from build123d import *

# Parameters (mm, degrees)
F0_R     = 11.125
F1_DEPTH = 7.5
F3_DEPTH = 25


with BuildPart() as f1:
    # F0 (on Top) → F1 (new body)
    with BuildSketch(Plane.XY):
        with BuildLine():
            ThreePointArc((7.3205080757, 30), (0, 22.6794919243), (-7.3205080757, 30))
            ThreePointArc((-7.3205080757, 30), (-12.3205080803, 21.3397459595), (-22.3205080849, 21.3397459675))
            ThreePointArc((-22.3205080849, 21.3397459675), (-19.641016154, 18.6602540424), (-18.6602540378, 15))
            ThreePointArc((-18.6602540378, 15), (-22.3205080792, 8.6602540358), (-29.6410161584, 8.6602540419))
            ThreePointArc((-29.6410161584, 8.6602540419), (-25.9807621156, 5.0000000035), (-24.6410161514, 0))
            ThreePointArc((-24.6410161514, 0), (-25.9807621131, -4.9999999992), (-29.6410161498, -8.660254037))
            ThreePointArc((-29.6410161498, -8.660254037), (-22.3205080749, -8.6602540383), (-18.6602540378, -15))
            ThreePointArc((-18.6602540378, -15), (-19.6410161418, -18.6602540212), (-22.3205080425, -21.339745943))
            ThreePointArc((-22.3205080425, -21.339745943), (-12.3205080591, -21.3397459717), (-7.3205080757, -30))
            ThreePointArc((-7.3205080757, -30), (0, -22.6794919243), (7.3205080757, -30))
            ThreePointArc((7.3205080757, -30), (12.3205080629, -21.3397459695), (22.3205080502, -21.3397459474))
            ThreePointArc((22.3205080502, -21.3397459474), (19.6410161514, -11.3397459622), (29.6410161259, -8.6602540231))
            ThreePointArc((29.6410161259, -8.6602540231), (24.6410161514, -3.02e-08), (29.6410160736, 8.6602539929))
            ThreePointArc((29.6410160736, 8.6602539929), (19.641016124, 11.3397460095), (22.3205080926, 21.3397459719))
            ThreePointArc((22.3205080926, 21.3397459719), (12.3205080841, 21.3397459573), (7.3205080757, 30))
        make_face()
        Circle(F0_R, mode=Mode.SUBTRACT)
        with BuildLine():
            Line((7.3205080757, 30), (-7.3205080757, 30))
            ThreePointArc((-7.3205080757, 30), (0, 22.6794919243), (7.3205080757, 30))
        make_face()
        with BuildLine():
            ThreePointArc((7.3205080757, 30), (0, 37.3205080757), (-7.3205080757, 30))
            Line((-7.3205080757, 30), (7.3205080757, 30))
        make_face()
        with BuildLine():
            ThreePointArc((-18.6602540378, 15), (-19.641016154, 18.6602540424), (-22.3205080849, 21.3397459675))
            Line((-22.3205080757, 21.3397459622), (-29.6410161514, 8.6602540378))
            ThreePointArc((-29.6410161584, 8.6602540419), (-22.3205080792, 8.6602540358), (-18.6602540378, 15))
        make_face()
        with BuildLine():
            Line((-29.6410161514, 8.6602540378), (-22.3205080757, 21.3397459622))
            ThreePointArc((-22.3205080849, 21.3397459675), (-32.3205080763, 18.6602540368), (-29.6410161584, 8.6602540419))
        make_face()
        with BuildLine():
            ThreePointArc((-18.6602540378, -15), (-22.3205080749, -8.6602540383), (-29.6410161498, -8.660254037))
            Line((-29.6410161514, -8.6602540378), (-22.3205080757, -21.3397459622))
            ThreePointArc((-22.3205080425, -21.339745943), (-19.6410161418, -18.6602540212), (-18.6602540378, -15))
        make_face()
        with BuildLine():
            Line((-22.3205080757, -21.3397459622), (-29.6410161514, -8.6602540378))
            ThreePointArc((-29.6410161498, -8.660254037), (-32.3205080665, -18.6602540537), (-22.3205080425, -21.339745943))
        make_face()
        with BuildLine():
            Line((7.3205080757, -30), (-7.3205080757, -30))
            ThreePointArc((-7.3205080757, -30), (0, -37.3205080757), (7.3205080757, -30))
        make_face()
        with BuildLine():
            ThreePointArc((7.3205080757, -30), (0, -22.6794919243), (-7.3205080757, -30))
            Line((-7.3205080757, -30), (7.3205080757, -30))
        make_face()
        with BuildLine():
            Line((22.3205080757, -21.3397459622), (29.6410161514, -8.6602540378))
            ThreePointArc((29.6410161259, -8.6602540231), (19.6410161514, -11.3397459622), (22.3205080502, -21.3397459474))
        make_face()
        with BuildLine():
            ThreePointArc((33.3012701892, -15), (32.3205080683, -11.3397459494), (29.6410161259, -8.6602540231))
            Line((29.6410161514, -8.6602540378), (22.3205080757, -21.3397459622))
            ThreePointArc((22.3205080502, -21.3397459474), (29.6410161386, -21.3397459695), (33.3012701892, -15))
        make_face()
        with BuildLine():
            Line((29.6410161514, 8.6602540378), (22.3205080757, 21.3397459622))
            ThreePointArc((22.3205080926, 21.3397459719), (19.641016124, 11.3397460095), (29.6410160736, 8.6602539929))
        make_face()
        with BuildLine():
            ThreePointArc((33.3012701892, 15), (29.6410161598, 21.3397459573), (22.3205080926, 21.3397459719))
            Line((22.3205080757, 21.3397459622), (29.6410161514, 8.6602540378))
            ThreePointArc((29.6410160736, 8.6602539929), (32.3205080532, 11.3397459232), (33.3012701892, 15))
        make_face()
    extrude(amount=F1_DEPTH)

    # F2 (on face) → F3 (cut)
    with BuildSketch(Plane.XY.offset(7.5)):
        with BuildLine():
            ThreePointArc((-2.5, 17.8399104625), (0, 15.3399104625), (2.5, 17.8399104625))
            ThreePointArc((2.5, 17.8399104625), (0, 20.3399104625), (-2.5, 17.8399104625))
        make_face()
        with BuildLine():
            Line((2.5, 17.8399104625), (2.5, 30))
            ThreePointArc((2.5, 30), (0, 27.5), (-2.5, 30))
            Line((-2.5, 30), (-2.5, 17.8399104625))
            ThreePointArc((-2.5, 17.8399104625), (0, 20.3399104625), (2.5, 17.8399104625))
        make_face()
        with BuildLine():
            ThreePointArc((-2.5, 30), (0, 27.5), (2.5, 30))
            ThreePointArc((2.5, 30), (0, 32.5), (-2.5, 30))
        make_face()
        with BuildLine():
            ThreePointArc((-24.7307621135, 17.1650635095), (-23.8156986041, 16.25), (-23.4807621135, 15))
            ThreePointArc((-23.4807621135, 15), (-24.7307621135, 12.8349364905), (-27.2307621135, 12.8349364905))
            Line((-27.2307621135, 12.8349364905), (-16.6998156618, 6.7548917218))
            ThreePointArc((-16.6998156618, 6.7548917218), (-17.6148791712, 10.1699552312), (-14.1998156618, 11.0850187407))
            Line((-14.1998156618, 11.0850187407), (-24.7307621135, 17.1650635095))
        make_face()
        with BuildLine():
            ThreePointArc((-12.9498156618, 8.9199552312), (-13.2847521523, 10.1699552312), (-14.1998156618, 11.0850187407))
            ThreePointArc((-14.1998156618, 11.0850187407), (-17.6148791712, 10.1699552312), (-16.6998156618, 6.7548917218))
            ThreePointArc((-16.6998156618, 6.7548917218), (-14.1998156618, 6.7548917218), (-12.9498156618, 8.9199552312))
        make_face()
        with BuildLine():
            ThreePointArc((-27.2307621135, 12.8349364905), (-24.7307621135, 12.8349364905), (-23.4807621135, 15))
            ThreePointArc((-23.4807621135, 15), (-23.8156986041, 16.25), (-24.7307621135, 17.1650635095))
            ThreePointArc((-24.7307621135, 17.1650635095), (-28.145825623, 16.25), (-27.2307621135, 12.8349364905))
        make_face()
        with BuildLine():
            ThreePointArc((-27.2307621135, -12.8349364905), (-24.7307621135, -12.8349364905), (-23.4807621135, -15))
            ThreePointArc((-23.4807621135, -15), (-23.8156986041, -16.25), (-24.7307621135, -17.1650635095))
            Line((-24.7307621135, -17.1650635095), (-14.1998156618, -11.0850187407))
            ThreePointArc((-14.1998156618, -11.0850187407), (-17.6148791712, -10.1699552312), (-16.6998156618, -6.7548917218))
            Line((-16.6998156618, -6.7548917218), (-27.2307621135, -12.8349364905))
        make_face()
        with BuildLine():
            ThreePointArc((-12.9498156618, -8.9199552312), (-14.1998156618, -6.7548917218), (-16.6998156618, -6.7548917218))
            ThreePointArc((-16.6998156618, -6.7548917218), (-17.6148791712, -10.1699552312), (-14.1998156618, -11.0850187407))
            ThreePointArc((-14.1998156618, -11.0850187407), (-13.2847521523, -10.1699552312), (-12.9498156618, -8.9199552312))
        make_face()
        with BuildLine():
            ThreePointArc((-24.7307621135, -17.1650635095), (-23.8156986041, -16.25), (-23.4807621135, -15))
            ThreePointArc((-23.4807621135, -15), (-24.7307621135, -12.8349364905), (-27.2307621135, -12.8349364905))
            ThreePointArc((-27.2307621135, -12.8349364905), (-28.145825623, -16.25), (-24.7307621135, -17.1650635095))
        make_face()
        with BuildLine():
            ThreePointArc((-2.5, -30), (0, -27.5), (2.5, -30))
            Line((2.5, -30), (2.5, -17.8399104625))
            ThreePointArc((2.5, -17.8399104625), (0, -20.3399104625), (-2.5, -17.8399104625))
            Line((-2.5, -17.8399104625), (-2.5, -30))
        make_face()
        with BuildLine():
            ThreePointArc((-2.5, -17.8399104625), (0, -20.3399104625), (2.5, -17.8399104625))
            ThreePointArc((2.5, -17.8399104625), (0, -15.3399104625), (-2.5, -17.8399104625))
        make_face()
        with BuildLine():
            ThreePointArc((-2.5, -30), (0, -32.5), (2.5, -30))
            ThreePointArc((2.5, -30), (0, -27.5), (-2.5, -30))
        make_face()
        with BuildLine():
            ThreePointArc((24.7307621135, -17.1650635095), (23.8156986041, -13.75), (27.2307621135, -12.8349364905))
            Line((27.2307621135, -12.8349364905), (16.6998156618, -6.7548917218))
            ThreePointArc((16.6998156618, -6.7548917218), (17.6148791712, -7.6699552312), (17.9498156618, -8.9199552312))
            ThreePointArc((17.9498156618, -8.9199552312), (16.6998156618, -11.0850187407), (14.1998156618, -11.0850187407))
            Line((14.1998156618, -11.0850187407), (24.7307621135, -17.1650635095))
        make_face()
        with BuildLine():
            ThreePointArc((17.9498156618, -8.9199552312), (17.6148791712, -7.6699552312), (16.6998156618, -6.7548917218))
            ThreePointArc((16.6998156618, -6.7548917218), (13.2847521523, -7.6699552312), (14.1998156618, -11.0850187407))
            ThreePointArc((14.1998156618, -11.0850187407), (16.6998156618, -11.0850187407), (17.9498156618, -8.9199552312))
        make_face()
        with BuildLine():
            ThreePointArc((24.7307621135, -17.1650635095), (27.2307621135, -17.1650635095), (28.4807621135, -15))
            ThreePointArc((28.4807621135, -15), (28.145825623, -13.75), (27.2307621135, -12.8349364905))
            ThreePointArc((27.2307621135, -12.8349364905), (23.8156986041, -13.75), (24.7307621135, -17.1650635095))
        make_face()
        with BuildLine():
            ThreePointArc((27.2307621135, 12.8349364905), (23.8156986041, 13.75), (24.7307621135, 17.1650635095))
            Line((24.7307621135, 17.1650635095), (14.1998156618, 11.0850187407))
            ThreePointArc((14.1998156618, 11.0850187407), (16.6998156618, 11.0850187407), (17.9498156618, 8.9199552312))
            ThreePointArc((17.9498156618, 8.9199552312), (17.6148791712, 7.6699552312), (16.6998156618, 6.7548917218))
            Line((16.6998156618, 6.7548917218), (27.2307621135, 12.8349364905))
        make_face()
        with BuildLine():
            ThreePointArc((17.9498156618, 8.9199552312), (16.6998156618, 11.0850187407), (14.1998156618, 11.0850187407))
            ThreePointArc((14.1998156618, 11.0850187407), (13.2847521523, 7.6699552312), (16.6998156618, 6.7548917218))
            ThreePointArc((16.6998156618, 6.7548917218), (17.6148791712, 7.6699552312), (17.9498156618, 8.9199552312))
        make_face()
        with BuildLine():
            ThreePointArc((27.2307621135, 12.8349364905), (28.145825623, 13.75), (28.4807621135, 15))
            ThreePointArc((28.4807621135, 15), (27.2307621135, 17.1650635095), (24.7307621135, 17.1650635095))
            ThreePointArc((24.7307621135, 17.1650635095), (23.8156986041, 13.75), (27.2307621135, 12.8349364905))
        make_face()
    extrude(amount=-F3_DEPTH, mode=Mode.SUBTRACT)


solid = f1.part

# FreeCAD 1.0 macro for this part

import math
import FreeCAD as App
import Part
import Sketcher
Q = App.Units.Quantity

doc = App.newDocument("Part")
params = doc.addObject("Spreadsheet::Sheet", "Params")
for row, (alias, value) in enumerate([
    ("sketch1_radius", "10 mm"),
    ("sketch1_diameter", "22.25 mm"),
    ("sketch1_width", "5 mm"),
    ("pad1_length", "7.5 mm"),
    ("sketch2_radius", "2.5 mm"),
    ("pocket1_length", "25 mm"),
], start=1):
    params.set(f"A{row}", alias)
    params.set(f"B{row}", "=" + value)
    params.setAlias(f"B{row}", alias)

body = doc.addObject("PartDesign::Body", "Body")

sketch1 = doc.addObject("Sketcher::SketchObject", "Sketch")
body.addObject(sketch1)
sketch1.AttachmentSupport = (doc.XY_Plane, [""])
sketch1.MapMode = "FlatFace"
sketch1.addGeometry(Part.ArcOfCircle(Part.Circle(App.Vector(17.320508, 30, 0), App.Vector(0, 0, 1), 10), math.radians(180), math.radians(300)), False)
sketch1.addGeometry(Part.ArcOfCircle(Part.Circle(App.Vector(0, 30, 0), App.Vector(0, 0, 1), 7.320508), math.radians(0), math.radians(180)), False)
sketch1.addGeometry(Part.ArcOfCircle(Part.Circle(App.Vector(-17.320508, 30, 0), App.Vector(0, 0, 1), 10), math.radians(-120), math.radians(0)), False)
sketch1.addGeometry(Part.ArcOfCircle(Part.Circle(App.Vector(-25.980762, 15, 0), App.Vector(0, 0, 1), 7.320508), math.radians(60), math.radians(240)), False)
sketch1.addGeometry(Part.ArcOfCircle(Part.Circle(App.Vector(-34.641016, 0, 0), App.Vector(0, 0, 1), 10), math.radians(0), math.radians(60)), False)
sketch1.addGeometry(Part.ArcOfCircle(Part.Circle(App.Vector(-34.641016, 0, 0), App.Vector(0, 0, 1), 10), math.radians(-60), math.radians(0)), False)
sketch1.addGeometry(Part.ArcOfCircle(Part.Circle(App.Vector(-25.980762, -15, 0), App.Vector(0, 0, 1), 7.320508), math.radians(120), math.radians(300)), False)
sketch1.addGeometry(Part.ArcOfCircle(Part.Circle(App.Vector(-17.320508, -30, 0), App.Vector(0, 0, 1), 10), math.radians(0), math.radians(120)), False)
sketch1.addGeometry(Part.ArcOfCircle(Part.Circle(App.Vector(0, -30, 0), App.Vector(0, 0, 1), 7.320508), math.radians(180), math.radians(360)), False)
sketch1.addGeometry(Part.ArcOfCircle(Part.Circle(App.Vector(17.320508, -30, 0), App.Vector(0, 0, 1), 10), math.radians(60), math.radians(180)), False)
sketch1.addGeometry(Part.ArcOfCircle(Part.Circle(App.Vector(25.980762, -15, 0), App.Vector(0, 0, 1), 7.320508), math.radians(-120), math.radians(0)), False)
sketch1.addGeometry(Part.ArcOfCircle(Part.Circle(App.Vector(25.980762, -15, 0), App.Vector(0, 0, 1), 7.320508), math.radians(0), math.radians(60)), False)
sketch1.addGeometry(Part.ArcOfCircle(Part.Circle(App.Vector(34.641016, 0, 0), App.Vector(0, 0, 1), 10), math.radians(120.000001), math.radians(240)), False)
sketch1.addGeometry(Part.ArcOfCircle(Part.Circle(App.Vector(25.980762, 15, 0), App.Vector(0, 0, 1), 7.320508), math.radians(-60.000001), math.radians(0)), False)
sketch1.addGeometry(Part.ArcOfCircle(Part.Circle(App.Vector(25.980762, 15, 0), App.Vector(0, 0, 1), 7.320508), math.radians(0), math.radians(120)), False)
sketch1.addGeometry(Part.Circle(App.Vector(0, 0, 0), App.Vector(0, 0, 1), 11.125), False)
sketch1.addConstraint(Sketcher.Constraint("Tangent", 0, 1, 1, 1))
sketch1.addConstraint(Sketcher.Constraint("Tangent", 1, 2, 2, 2))
sketch1.addConstraint(Sketcher.Constraint("Tangent", 2, 1, 3, 1))
sketch1.addConstraint(Sketcher.Constraint("Tangent", 3, 2, 4, 2))
sketch1.addConstraint(Sketcher.Constraint("Tangent", 4, 1, 5, 2))
sketch1.addConstraint(Sketcher.Constraint("Tangent", 5, 1, 6, 1))
sketch1.addConstraint(Sketcher.Constraint("Tangent", 6, 2, 7, 2))
sketch1.addConstraint(Sketcher.Constraint("Tangent", 7, 1, 8, 1))
sketch1.addConstraint(Sketcher.Constraint("Tangent", 8, 2, 9, 2))
sketch1.addConstraint(Sketcher.Constraint("Tangent", 9, 1, 10, 1))
sketch1.addConstraint(Sketcher.Constraint("Tangent", 10, 2, 11, 1))
sketch1.addConstraint(Sketcher.Constraint("Tangent", 11, 2, 12, 2))
sketch1.addConstraint(Sketcher.Constraint("Tangent", 12, 1, 13, 1))
sketch1.addConstraint(Sketcher.Constraint("Tangent", 13, 2, 14, 1))
sketch1.addConstraint(Sketcher.Constraint("Tangent", 14, 2, 0, 2))
sketch1.addConstraint(Sketcher.Constraint("Coincident", 15, 3, -1, 1))
sketch1.addConstraint(Sketcher.Constraint("Equal", 0, 2))
sketch1.addConstraint(Sketcher.Constraint("Equal", 1, 3))
sketch1.addConstraint(Sketcher.Constraint("Equal", 2, 4))
sketch1.addConstraint(Sketcher.Constraint("Equal", 4, 5))
sketch1.addConstraint(Sketcher.Constraint("Equal", 3, 6))
sketch1.addConstraint(Sketcher.Constraint("Equal", 5, 7))
sketch1.addConstraint(Sketcher.Constraint("Equal", 6, 8))
sketch1.addConstraint(Sketcher.Constraint("Equal", 7, 9))
sketch1.addConstraint(Sketcher.Constraint("Equal", 8, 10))
sketch1.addConstraint(Sketcher.Constraint("Equal", 10, 11))
sketch1.addConstraint(Sketcher.Constraint("Equal", 9, 12))
sketch1.addConstraint(Sketcher.Constraint("Equal", 11, 13))
sketch1.addConstraint(Sketcher.Constraint("Equal", 13, 14))
sketch1.addConstraint(Sketcher.Constraint("Symmetric", 0, 3, 7, 3, -1, 1))
sketch1.addConstraint(Sketcher.Constraint("Symmetric", 3, 3, 10, 3, -1, 1))
sketch1.addConstraint(Sketcher.Constraint("Symmetric", 0, 3, 2, 3, -2))
sketch1.addConstraint(Sketcher.Constraint("Symmetric", 10, 2, 13, 2, -1))
sketch1.addConstraint(Sketcher.Constraint("PointOnObject", 4, 1, -1))
sketch1.addConstraint(Sketcher.Constraint("Horizontal", 0, 3, 1, 3))
sketch1.addConstraint(Sketcher.Constraint("Horizontal", 7, 3, 8, 3))
sketch1.addConstraint(Sketcher.Constraint("Horizontal", 6, 3, 10, 3))
sketch1.addConstraint(Sketcher.Constraint("Horizontal", 11, 3, 10, 2))
sketch1.addConstraint(Sketcher.Constraint("Radius", 0, Q("10 mm")))
sketch1.addConstraint(Sketcher.Constraint("Diameter", 15, Q("22.25 mm")))
sketch1.addConstraint(Sketcher.Constraint("DistanceY", -1, 1, 0, 3, Q("30 mm")))
sketch1.addConstraint(Sketcher.Constraint("DistanceY", -1, 1, 3, 3, Q("15 mm")))
sketch1.addConstraint(Sketcher.Constraint("DistanceX", 2, 1, 2, 3, Q("5 mm")))
sketch1.setExpression("Constraints[38]", "Params.sketch1_radius")
sketch1.setExpression("Constraints[39]", "Params.sketch1_diameter")
sketch1.setExpression("Constraints[42]", "Params.sketch1_width")
pad1 = doc.addObject("PartDesign::Pad", "Pad")
body.addObject(pad1)
pad1.Profile = sketch1
pad1.setExpression("Length", "Params.pad1_length")

sketch2 = doc.addObject("Sketcher::SketchObject", "Sketch001")
body.addObject(sketch2)
sketch2.AttachmentSupport = (doc.XY_Plane, [""])
sketch2.MapMode = "FlatFace"
sketch2.AttachmentOffset = App.Placement(App.Vector(0, 0, 7.5), App.Rotation())
sketch2.addGeometry(Part.ArcOfCircle(Part.Circle(App.Vector(0, 17.83991, 0), App.Vector(0, 0, 1), 2.5), math.radians(180), math.radians(360)), False)
sketch2.addGeometry(Part.LineSegment(App.Vector(2.5, 17.83991, 0), App.Vector(2.5, 30, 0)), False)
sketch2.addGeometry(Part.ArcOfCircle(Part.Circle(App.Vector(0, 30, 0), App.Vector(0, 0, 1), 2.5), math.radians(0), math.radians(180)), False)
sketch2.addGeometry(Part.LineSegment(App.Vector(-2.5, 30, 0), App.Vector(-2.5, 17.83991, 0)), False)
sketch2.addGeometry(Part.LineSegment(App.Vector(-27.230762, 12.834936, 0), App.Vector(-16.699816, 6.754892, 0)), False)
sketch2.addGeometry(Part.ArcOfCircle(Part.Circle(App.Vector(-15.449816, 8.919955, 0), App.Vector(0, 0, 1), 2.5), math.radians(-120), math.radians(0)), False)
sketch2.addGeometry(Part.ArcOfCircle(Part.Circle(App.Vector(-15.449816, 8.919955, 0), App.Vector(0, 0, 1), 2.5), math.radians(0), math.radians(60)), False)
sketch2.addGeometry(Part.LineSegment(App.Vector(-14.199816, 11.085019, 0), App.Vector(-24.730762, 17.165064, 0)), False)
sketch2.addGeometry(Part.ArcOfCircle(Part.Circle(App.Vector(-25.980762, 15, 0), App.Vector(0, 0, 1), 2.5), math.radians(60), math.radians(240)), False)
sketch2.addGeometry(Part.LineSegment(App.Vector(-24.730762, -17.165064, 0), App.Vector(-14.199816, -11.085019, 0)), False)
sketch2.addGeometry(Part.ArcOfCircle(Part.Circle(App.Vector(-15.449816, -8.919955, 0), App.Vector(0, 0, 1), 2.5), math.radians(-60), math.radians(0)), False)
sketch2.addGeometry(Part.ArcOfCircle(Part.Circle(App.Vector(-15.449816, -8.919955, 0), App.Vector(0, 0, 1), 2.5), math.radians(0), math.radians(120)), False)
sketch2.addGeometry(Part.LineSegment(App.Vector(-16.699816, -6.754892, 0), App.Vector(-27.230762, -12.834936, 0)), False)
sketch2.addGeometry(Part.ArcOfCircle(Part.Circle(App.Vector(-25.980762, -15, 0), App.Vector(0, 0, 1), 2.5), math.radians(120), math.radians(300)), False)
sketch2.addGeometry(Part.LineSegment(App.Vector(2.5, -30, 0), App.Vector(2.5, -17.83991, 0)), False)
sketch2.addGeometry(Part.ArcOfCircle(Part.Circle(App.Vector(0, -17.83991, 0), App.Vector(0, 0, 1), 2.5), math.radians(0), math.radians(180)), False)
sketch2.addGeometry(Part.LineSegment(App.Vector(-2.5, -17.83991, 0), App.Vector(-2.5, -30, 0)), False)
sketch2.addGeometry(Part.ArcOfCircle(Part.Circle(App.Vector(0, -30, 0), App.Vector(0, 0, 1), 2.5), math.radians(180), math.radians(360)), False)
sketch2.addGeometry(Part.LineSegment(App.Vector(27.230762, -12.834936, 0), App.Vector(16.699816, -6.754892, 0)), False)
sketch2.addGeometry(Part.ArcOfCircle(Part.Circle(App.Vector(15.449816, -8.919955, 0), App.Vector(0, 0, 1), 2.5), math.radians(60), math.radians(240)), False)
sketch2.addGeometry(Part.LineSegment(App.Vector(14.199816, -11.085019, 0), App.Vector(24.730762, -17.165064, 0)), False)
sketch2.addGeometry(Part.ArcOfCircle(Part.Circle(App.Vector(25.980762, -15, 0), App.Vector(0, 0, 1), 2.5), math.radians(-120), math.radians(0)), False)
sketch2.addGeometry(Part.ArcOfCircle(Part.Circle(App.Vector(25.980762, -15, 0), App.Vector(0, 0, 1), 2.5), math.radians(0), math.radians(60)), False)
sketch2.addGeometry(Part.LineSegment(App.Vector(24.730762, 17.165064, 0), App.Vector(14.199816, 11.085019, 0)), False)
sketch2.addGeometry(Part.ArcOfCircle(Part.Circle(App.Vector(15.449816, 8.919955, 0), App.Vector(0, 0, 1), 2.5), math.radians(120), math.radians(300)), False)
sketch2.addGeometry(Part.LineSegment(App.Vector(16.699816, 6.754892, 0), App.Vector(27.230762, 12.834936, 0)), False)
sketch2.addGeometry(Part.ArcOfCircle(Part.Circle(App.Vector(25.980762, 15, 0), App.Vector(0, 0, 1), 2.5), math.radians(-60), math.radians(0)), False)
sketch2.addGeometry(Part.ArcOfCircle(Part.Circle(App.Vector(25.980762, 15, 0), App.Vector(0, 0, 1), 2.5), math.radians(0), math.radians(120)), False)
sketch2.addConstraint(Sketcher.Constraint("Tangent", 0, 2, 1, 1))
sketch2.addConstraint(Sketcher.Constraint("Tangent", 1, 2, 2, 1))
sketch2.addConstraint(Sketcher.Constraint("Tangent", 2, 2, 3, 1))
sketch2.addConstraint(Sketcher.Constraint("Tangent", 3, 2, 0, 1))
sketch2.addConstraint(Sketcher.Constraint("Tangent", 4, 2, 5, 1))
sketch2.addConstraint(Sketcher.Constraint("Tangent", 5, 2, 6, 1))
sketch2.addConstraint(Sketcher.Constraint("Tangent", 6, 2, 7, 1))
sketch2.addConstraint(Sketcher.Constraint("Tangent", 7, 2, 8, 1))
sketch2.addConstraint(Sketcher.Constraint("Tangent", 8, 2, 4, 1))
sketch2.addConstraint(Sketcher.Constraint("Tangent", 9, 2, 10, 1))
sketch2.addConstraint(Sketcher.Constraint("Tangent", 10, 2, 11, 1))
sketch2.addConstraint(Sketcher.Constraint("Tangent", 11, 2, 12, 1))
sketch2.addConstraint(Sketcher.Constraint("Tangent", 12, 2, 13, 1))
sketch2.addConstraint(Sketcher.Constraint("Tangent", 13, 2, 9, 1))
sketch2.addConstraint(Sketcher.Constraint("Tangent", 14, 2, 15, 1))
sketch2.addConstraint(Sketcher.Constraint("Tangent", 15, 2, 16, 1))
sketch2.addConstraint(Sketcher.Constraint("Tangent", 16, 2, 17, 1))
sketch2.addConstraint(Sketcher.Constraint("Tangent", 17, 2, 14, 1))
sketch2.addConstraint(Sketcher.Constraint("Tangent", 18, 2, 19, 1))
sketch2.addConstraint(Sketcher.Constraint("Tangent", 19, 2, 20, 1))
sketch2.addConstraint(Sketcher.Constraint("Tangent", 20, 2, 21, 1))
sketch2.addConstraint(Sketcher.Constraint("Tangent", 21, 2, 22, 1))
sketch2.addConstraint(Sketcher.Constraint("Tangent", 22, 2, 18, 1))
sketch2.addConstraint(Sketcher.Constraint("Tangent", 23, 2, 24, 1))
sketch2.addConstraint(Sketcher.Constraint("Tangent", 24, 2, 25, 1))
sketch2.addConstraint(Sketcher.Constraint("Tangent", 25, 2, 26, 1))
sketch2.addConstraint(Sketcher.Constraint("Tangent", 26, 2, 27, 1))
sketch2.addConstraint(Sketcher.Constraint("Tangent", 27, 2, 23, 1))
sketch2.addConstraint(Sketcher.Constraint("Vertical", 1))
sketch2.addConstraint(Sketcher.Constraint("Vertical", 3))
sketch2.addConstraint(Sketcher.Constraint("Vertical", 14))
sketch2.addConstraint(Sketcher.Constraint("Vertical", 16))
sketch2.addConstraint(Sketcher.Constraint("Equal", 2, 5))
sketch2.addConstraint(Sketcher.Constraint("Equal", 5, 6))
sketch2.addConstraint(Sketcher.Constraint("Equal", 6, 8))
sketch2.addConstraint(Sketcher.Constraint("Equal", 8, 10))
sketch2.addConstraint(Sketcher.Constraint("Equal", 10, 11))
sketch2.addConstraint(Sketcher.Constraint("Equal", 11, 13))
sketch2.addConstraint(Sketcher.Constraint("Equal", 13, 15))
sketch2.addConstraint(Sketcher.Constraint("Equal", 17, 19))
sketch2.addConstraint(Sketcher.Constraint("Equal", 19, 21))
sketch2.addConstraint(Sketcher.Constraint("Equal", 21, 22))
sketch2.addConstraint(Sketcher.Constraint("Equal", 22, 24))
sketch2.addConstraint(Sketcher.Constraint("Equal", 24, 26))
sketch2.addConstraint(Sketcher.Constraint("Equal", 26, 27))
sketch2.addConstraint(Sketcher.Constraint("Symmetric", 0, 3, 15, 3, -1, 1))
sketch2.addConstraint(Sketcher.Constraint("Symmetric", 5, 3, 19, 3, -1, 1))
sketch2.addConstraint(Sketcher.Constraint("Symmetric", 8, 3, 21, 3, -1, 1))
sketch2.addConstraint(Sketcher.Constraint("Symmetric", 10, 3, 24, 3, -1, 1))
sketch2.addConstraint(Sketcher.Constraint("Symmetric", 13, 3, 26, 3, -1, 1))
sketch2.addConstraint(Sketcher.Constraint("Symmetric", 10, 3, 19, 3, -2))
sketch2.addConstraint(Sketcher.Constraint("Symmetric", 13, 3, 21, 3, -2))
sketch2.addConstraint(Sketcher.Constraint("Symmetric", 2, 3, 17, 3, -1))
sketch2.addConstraint(Sketcher.Constraint("Horizontal", 24, 3, 5, 2))
sketch2.addConstraint(Sketcher.Constraint("Horizontal", 19, 3, 10, 2))
sketch2.addConstraint(Sketcher.Constraint("Horizontal", 22, 3, 21, 2))
sketch2.addConstraint(Sketcher.Constraint("Horizontal", 27, 3, 26, 2))
sketch2.addConstraint(Sketcher.Constraint("Radius", 0, Q("2.5 mm")))
sketch2.addConstraint(Sketcher.Constraint("Angle", 4, Q("-30 deg")))
sketch2.addConstraint(Sketcher.Constraint("DistanceY", -1, 1, 2, 3, Q("30 mm")))
sketch2.addConstraint(Sketcher.Constraint("DistanceY", -1, 1, 8, 3, Q("15 mm")))
sketch2.addConstraint(Sketcher.Constraint("DistanceY", 1, 1, 1, 2, Q("12.16009 mm")))
sketch2.addConstraint(Sketcher.Constraint("Distance", 4, Q("12.16009 mm")))
sketch2.addConstraint(Sketcher.Constraint("DistanceX", 10, 3, 19, 3, Q("30.899631 mm")))
sketch2.setExpression("Constraints[57]", "Params.sketch2_radius")
pocket1 = doc.addObject("PartDesign::Pocket", "Pocket")
body.addObject(pocket1)
pocket1.Profile = sketch2
pocket1.setExpression("Length", "Params.pocket1_length")

doc.recompute()
